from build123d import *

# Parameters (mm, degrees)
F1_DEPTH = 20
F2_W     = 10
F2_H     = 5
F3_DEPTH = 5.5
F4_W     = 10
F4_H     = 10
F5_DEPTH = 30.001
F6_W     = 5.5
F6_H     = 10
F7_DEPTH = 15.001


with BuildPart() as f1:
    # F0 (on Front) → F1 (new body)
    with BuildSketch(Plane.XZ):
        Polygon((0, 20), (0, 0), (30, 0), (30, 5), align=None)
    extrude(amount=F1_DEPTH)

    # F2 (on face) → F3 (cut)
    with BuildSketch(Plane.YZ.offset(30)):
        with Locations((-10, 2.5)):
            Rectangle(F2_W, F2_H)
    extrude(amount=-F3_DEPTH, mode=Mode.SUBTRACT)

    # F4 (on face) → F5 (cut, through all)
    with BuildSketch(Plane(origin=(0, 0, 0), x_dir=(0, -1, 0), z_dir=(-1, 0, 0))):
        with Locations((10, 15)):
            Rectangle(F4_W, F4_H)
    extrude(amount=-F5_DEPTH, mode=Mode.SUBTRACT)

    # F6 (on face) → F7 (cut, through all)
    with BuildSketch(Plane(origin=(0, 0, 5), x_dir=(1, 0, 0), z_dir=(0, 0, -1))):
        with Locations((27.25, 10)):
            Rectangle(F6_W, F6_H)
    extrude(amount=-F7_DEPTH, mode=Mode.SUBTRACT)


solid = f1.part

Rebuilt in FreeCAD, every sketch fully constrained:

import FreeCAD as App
import Part
import Sketcher

V = App.Vector


def add_polygon(sketch, points):
    """Adds a closed chain of lines whose ends are joined by coincident constraints."""
    first, n = sketch.GeometryCount, len(points)
    for a, b in zip(points, points[1:] + points[:1]):
        sketch.addGeometry(Part.LineSegment(App.Vector(*a, 0), App.Vector(*b, 0)), False)
    for i in range(n):
        sketch.addConstraint(Sketcher.Constraint("Coincident", first + i, 2, first + (i + 1) % n, 1))

doc = App.newDocument("Part")
body = doc.addObject("PartDesign::Body", "Body")

# Sketch on XZ plane
sketch1 = body.newObject("Sketcher::SketchObject", "Sketch")
sketch1.AttachmentSupport = (doc.getObject("XZ_Plane"), [""])
sketch1.MapMode = "FlatFace"
add_polygon(sketch1, [(0, 20), (0, 0), (30, 0), (30, 5)])  # lines 0-3
sketch1.addConstraint([
    Sketcher.Constraint("Vertical", 0),
    Sketcher.Constraint("Horizontal", 1),
    Sketcher.Constraint("Vertical", 2),
    Sketcher.Constraint("Coincident", 0, 2, -1, 1),
    Sketcher.Constraint("DistanceX", 1, 1, 1, 2, 30.0),
    Sketcher.Constraint("DistanceY", 0, 2, 0, 1, 20.0),
    Sketcher.Constraint("DistanceY", 2, 1, 2, 2, 5.0),
])
pad1 = body.newObject("PartDesign::Pad", "Pad")
pad1.Profile = sketch1
pad1.Length = 20

# Sketch on YZ plane
sketch2 = body.newObject("Sketcher::SketchObject", "Sketch001")
sketch2.AttachmentSupport = (doc.getObject("YZ_Plane"), [""])
sketch2.MapMode = "FlatFace"
sketch2.AttachmentOffset = App.Placement(V(0, 0, 30), App.Rotation())
add_polygon(sketch2, [(-15, 5), (-15, 0), (-5, 0), (-5, 5)])  # lines 0-3
sketch2.addConstraint([
    Sketcher.Constraint("Vertical", 0),
    Sketcher.Constraint("Horizontal", 1),
    Sketcher.Constraint("Vertical", 2),
    Sketcher.Constraint("Horizontal", 3),
    Sketcher.Constraint("PointOnObject", 0, 2, -1),
    Sketcher.Constraint("DistanceX", 1, 1, 1, 2, 10.0),
    Sketcher.Constraint("DistanceY", 0, 2, 0, 1, 5.0),
    Sketcher.Constraint("DistanceX", 0, 2, -1, 1, 15.0),
])
pocket1 = body.newObject("PartDesign::Pocket", "Pocket")
pocket1.Profile = sketch2
pocket1.Length = 5.5

# Sketch on YZ plane
sketch3 = body.newObject("Sketcher::SketchObject", "Sketch002")
sketch3.AttachmentSupport = (doc.getObject("YZ_Plane"), [""])
sketch3.MapMode = "FlatFace"
add_polygon(sketch3, [(-5, 20), (-5, 10), (-15, 10), (-15, 20)])  # lines 0-3
sketch3.addConstraint([
    Sketcher.Constraint("Vertical", 0),
    Sketcher.Constraint("Horizontal", 1),
    Sketcher.Constraint("Vertical", 2),
    Sketcher.Constraint("Horizontal", 3),
    Sketcher.Constraint("Equal", 3, 0),
    Sketcher.Constraint("DistanceX", 1, 2, 1, 1, 10.0),
    Sketcher.Constraint("DistanceX", 0, 2, -1, 1, 5.0),
    Sketcher.Constraint("DistanceY", -1, 1, 0, 2, 10.0),
])
pocket2 = body.newObject("PartDesign::Pocket", "Pocket001")
pocket2.Profile = sketch3
pocket2.Type = "ThroughAll"
pocket2.Reversed = True

# Sketch on XY plane
sketch4 = body.newObject("Sketcher::SketchObject", "Sketch003")
sketch4.AttachmentSupport = (doc.getObject("XY_Plane"), [""])
sketch4.MapMode = "FlatFace"
sketch4.AttachmentOffset = App.Placement(V(0, 0, 5), App.Rotation())
add_polygon(sketch4, [(24, -15), (24, -5), (30, -5), (30, -15)])  # lines 0-3
sketch4.addConstraint([
    Sketcher.Constraint("Vertical", 0),
    Sketcher.Constraint("Horizontal", 1),
    Sketcher.Constraint("Vertical", 2),
    Sketcher.Constraint("Horizontal", 3),
    Sketcher.Constraint("DistanceY", 0, 1, 0, 2, 10.0),
    Sketcher.Constraint("DistanceX", 1, 1, 1, 2, 5.5),
    Sketcher.Constraint("DistanceY", 0, 2, -1, 1, 5.0),
    Sketcher.Constraint("DistanceX", -1, 1, 1, 2, 30.0),
])
pocket3 = body.newObject("PartDesign::Pocket", "Pocket002")
pocket3.Profile = sketch4
pocket3.Type = "ThroughAll"
pocket3.Reversed = True

doc.recompute()
